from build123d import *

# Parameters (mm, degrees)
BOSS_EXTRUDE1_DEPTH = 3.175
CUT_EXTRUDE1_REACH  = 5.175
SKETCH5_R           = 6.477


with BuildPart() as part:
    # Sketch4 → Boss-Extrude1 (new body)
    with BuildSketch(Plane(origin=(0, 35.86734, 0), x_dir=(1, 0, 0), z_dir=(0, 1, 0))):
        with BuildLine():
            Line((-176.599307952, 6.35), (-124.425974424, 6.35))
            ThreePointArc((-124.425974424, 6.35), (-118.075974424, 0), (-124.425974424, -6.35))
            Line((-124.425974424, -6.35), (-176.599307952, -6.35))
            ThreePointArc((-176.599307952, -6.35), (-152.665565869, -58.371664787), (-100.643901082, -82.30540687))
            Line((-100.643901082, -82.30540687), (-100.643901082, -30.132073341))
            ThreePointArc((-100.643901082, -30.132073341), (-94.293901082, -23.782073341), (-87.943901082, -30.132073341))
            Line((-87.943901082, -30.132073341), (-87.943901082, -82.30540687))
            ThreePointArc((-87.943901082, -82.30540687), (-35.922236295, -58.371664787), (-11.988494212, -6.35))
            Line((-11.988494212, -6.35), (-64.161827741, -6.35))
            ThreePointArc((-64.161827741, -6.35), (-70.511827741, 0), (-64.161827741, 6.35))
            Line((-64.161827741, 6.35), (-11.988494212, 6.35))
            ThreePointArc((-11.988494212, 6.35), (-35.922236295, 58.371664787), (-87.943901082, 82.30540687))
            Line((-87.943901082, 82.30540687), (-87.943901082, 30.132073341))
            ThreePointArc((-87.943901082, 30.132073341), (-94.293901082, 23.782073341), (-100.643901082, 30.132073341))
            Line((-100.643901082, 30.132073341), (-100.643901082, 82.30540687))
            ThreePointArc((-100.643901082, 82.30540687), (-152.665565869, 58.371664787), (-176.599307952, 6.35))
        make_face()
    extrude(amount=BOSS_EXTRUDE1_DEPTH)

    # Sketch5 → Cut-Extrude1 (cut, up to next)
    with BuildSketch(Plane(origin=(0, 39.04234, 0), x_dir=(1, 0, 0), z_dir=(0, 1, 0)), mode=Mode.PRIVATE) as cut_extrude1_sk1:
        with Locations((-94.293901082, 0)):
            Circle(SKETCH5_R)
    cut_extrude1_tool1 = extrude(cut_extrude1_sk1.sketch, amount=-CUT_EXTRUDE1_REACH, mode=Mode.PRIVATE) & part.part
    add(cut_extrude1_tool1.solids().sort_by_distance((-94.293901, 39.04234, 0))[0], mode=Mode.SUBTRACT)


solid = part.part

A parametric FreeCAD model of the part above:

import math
import FreeCAD as App
import Part
import Sketcher
Q = App.Units.Quantity

doc = App.newDocument("Part")
body = doc.addObject("PartDesign::Body", "Body")

sketch1 = body.newObject("Sketcher::SketchObject", "Sketch")
sketch1.AttachmentSupport = (doc.getObject("XZ_Plane"), [""])
sketch1.MapMode = "FlatFace"
sketch1.AttachmentOffset = App.Placement(App.Vector(0, 0, -1.4121 * 25.4), App.Rotation())
sketch1.addGeometry([
    Part.LineSegment(App.Vector(-177, -6, 0), App.Vector(-124, -6, 0)),
    Part.ArcOfCircle(Part.Circle(App.Vector(-124, 0, 0), App.Vector(0, 0, 1), 6), math.radians(-90), math.radians(90)),
    Part.LineSegment(App.Vector(-124, 6, 0), App.Vector(-177, 6, 0)),
    Part.ArcOfCircle(Part.Circle(App.Vector(-94, 0, 0), App.Vector(0, 0, 1), 83), math.radians(94), math.radians(176)),
    Part.LineSegment(App.Vector(-101, 82, 0), App.Vector(-101, 30, 0)),
    Part.ArcOfCircle(Part.Circle(App.Vector(-94, 30, 0), App.Vector(0, 0, 1), 6), math.radians(180), math.radians(360)),
    Part.LineSegment(App.Vector(-88, 30, 0), App.Vector(-88, 82, 0)),
    Part.ArcOfCircle(Part.Circle(App.Vector(-94, 0, 0), App.Vector(0, 0, 1), 83), math.radians(4), math.radians(86)),
    Part.LineSegment(App.Vector(-12, 6, 0), App.Vector(-64, 6, 0)),
    Part.ArcOfCircle(Part.Circle(App.Vector(-64, 0, 0), App.Vector(0, 0, 1), 6), math.radians(90), math.radians(270)),
    Part.LineSegment(App.Vector(-64, -6, 0), App.Vector(-12, -6, 0)),
    Part.ArcOfCircle(Part.Circle(App.Vector(-94, 0, 0), App.Vector(0, 0, 1), 83), math.radians(-86), math.radians(-4)),
    Part.LineSegment(App.Vector(-88, -82, 0), App.Vector(-88, -30, 0)),
    Part.ArcOfCircle(Part.Circle(App.Vector(-94, -30, 0), App.Vector(0, 0, 1), 6), math.radians(0), math.radians(180)),
    Part.LineSegment(App.Vector(-101, -30, 0), App.Vector(-101, -82, 0)),
    Part.ArcOfCircle(Part.Circle(App.Vector(-94, 0, 0), App.Vector(0, 0, 1), 83), math.radians(-176), math.radians(-94)),
], False)
sketch1.addConstraint([
    Sketcher.Constraint("Tangent", 0, 2, 1, 1),
    Sketcher.Constraint("Tangent", 1, 2, 2, 1),
    Sketcher.Constraint("Coincident", 2, 2, 3, 2),
    Sketcher.Constraint("Coincident", 3, 1, 4, 1),
    Sketcher.Constraint("Tangent", 4, 2, 5, 1),
    Sketcher.Constraint("Tangent", 5, 2, 6, 1),
    Sketcher.Constraint("Coincident", 6, 2, 7, 2),
    Sketcher.Constraint("Coincident", 7, 1, 8, 1),
    Sketcher.Constraint("Tangent", 8, 2, 9, 1),
    Sketcher.Constraint("Tangent", 9, 2, 10, 1),
    Sketcher.Constraint("Coincident", 10, 2, 11, 2),
    Sketcher.Constraint("Coincident", 11, 1, 12, 1),
    Sketcher.Constraint("Tangent", 12, 2, 13, 1),
    Sketcher.Constraint("Tangent", 13, 2, 14, 1),
    Sketcher.Constraint("Coincident", 14, 2, 15, 2),
    Sketcher.Constraint("Coincident", 15, 1, 0, 1),
    Sketcher.Constraint("Horizontal", 0),
    Sketcher.Constraint("Horizontal", 2),
    Sketcher.Constraint("Vertical", 4),
    Sketcher.Constraint("Vertical", 6),
    Sketcher.Constraint("Horizontal", 8),
    Sketcher.Constraint("Horizontal", 10),
    Sketcher.Constraint("Vertical", 12),
    Sketcher.Constraint("Vertical", 14),
    Sketcher.Constraint("Coincident", 7, 3, 3, 3),
    Sketcher.Constraint("Coincident", 11, 3, 3, 3),
    Sketcher.Constraint("Coincident", 15, 3, 3, 3),
    Sketcher.Constraint("Equal", 1, 5),
    Sketcher.Constraint("Equal", 3, 7),
    Sketcher.Constraint("Equal", 5, 9),
    Sketcher.Constraint("Equal", 7, 11),
    Sketcher.Constraint("Equal", 9, 13),
    Sketcher.Constraint("Equal", 11, 15),
    Sketcher.Constraint("Symmetric", 5, 3, 13, 3, -1),
    Sketcher.Constraint("Symmetric", 7, 1, 10, 2, -1),
    Sketcher.Constraint("PointOnObject", 1, 3, -1),
    Sketcher.Constraint("Horizontal", 3, 1, 6, 2),
    Sketcher.Constraint("Equal", 2, 8),
    Sketcher.Constraint("Equal", 10, 4),
    Sketcher.Constraint("Radius", 1, Q("0.25 in")),
    Sketcher.Constraint("Radius", 3, Q("3.25 in")),
    Sketcher.Constraint("DistanceX", 3, 3, -1, 1, 94.293901),
    Sketcher.Constraint("DistanceX", 0, 1, 0, 2, 52.173334),
])
pad1 = body.newObject("PartDesign::Pad", "Pad")
pad1.Profile = sketch1
pad1.Length = Q("0.125 in")
pad1.Reversed = True

sketch2 = body.newObject("Sketcher::SketchObject", "Sketch001")
sketch2.AttachmentSupport = (doc.getObject("XZ_Plane"), [""])
sketch2.MapMode = "FlatFace"
sketch2.AttachmentOffset = App.Placement(App.Vector(0, 0, -1.5371 * 25.4), App.Rotation())
sketch2.addGeometry(Part.Circle(App.Vector(-94, 0, 0), App.Vector(0, 0, 1), 6), False)
sketch2.addConstraint([
    Sketcher.Constraint("PointOnObject", 0, 3, -1),
    Sketcher.Constraint("Diameter", 0, Q("0.51 in")),
    Sketcher.Constraint("DistanceX", 0, 3, -1, 1, 94.293901),
])
pocket1 = body.newObject("PartDesign::Pocket", "Pocket")
pocket1.Profile = sketch2
pocket1.Type = "UpToFirst"
pocket1.Reversed = True

doc.recompute()
